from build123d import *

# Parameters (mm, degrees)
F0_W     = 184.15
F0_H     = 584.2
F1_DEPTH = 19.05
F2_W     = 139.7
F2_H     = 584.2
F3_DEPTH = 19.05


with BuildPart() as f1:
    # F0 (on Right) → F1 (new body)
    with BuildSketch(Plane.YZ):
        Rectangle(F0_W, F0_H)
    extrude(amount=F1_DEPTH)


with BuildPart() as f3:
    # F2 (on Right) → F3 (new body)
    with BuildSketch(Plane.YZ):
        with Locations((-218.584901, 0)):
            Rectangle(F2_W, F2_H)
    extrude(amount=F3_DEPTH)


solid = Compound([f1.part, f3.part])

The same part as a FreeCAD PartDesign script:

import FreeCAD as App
import Part
import Sketcher

V = App.Vector
Q = App.Units.Quantity

doc = App.newDocument("Part")
body = doc.addObject("PartDesign::Body", "Body")

# Sketch on YZ plane
sketch1 = body.newObject("Sketcher::SketchObject", "Sketch")
sketch1.AttachmentSupport = (doc.getObject("YZ_Plane"), [""])
sketch1.MapMode = "FlatFace"
sketch1.addGeometry([
    Part.LineSegment(V(-92, 292, 0), V(-92, -292, 0)),
    Part.LineSegment(V(-92, -292, 0), V(92, -292, 0)),
    Part.LineSegment(V(92, -292, 0), V(92, 292, 0)),
    Part.LineSegment(V(92, 292, 0), V(-92, 292, 0)),
], False)
sketch1.addConstraint([
    Sketcher.Constraint("Coincident", 0, 2, 1, 1),
    Sketcher.Constraint("Coincident", 1, 2, 2, 1),
    Sketcher.Constraint("Coincident", 2, 2, 3, 1),
    Sketcher.Constraint("Coincident", 3, 2, 0, 1),
    Sketcher.Constraint("Vertical", 0),
    Sketcher.Constraint("Horizontal", 1),
    Sketcher.Constraint("Vertical", 2),
    Sketcher.Constraint("Horizontal", 3),
    Sketcher.Constraint("Symmetric", 0, 2, 2, 2, -1, 1),
    Sketcher.Constraint("DistanceY", 0, 2, 0, 1, Q("23 in")),
    Sketcher.Constraint("DistanceX", 1, 1, 1, 2, Q("7.25 in")),
])
pad1 = body.newObject("PartDesign::Pad", "Pad")
pad1.Profile = sketch1
pad1.Length = Q("0.75 in")
body2 = doc.addObject("PartDesign::Body", "Body001")

# Sketch on YZ plane
sketch2 = body2.newObject("Sketcher::SketchObject", "Sketch001")
sketch2.AttachmentSupport = (doc.getObject("YZ_Plane001"), [""])
sketch2.MapMode = "FlatFace"
sketch2.addGeometry([
    Part.LineSegment(V(-288, 292, 0), V(-288, -292, 0)),
    Part.LineSegment(V(-288, -292, 0), V(-149, -292, 0)),
    Part.LineSegment(V(-149, -292, 0), V(-149, 292, 0)),
    Part.LineSegment(V(-149, 292, 0), V(-288, 292, 0)),
], False)
sketch2.addConstraint([
    Sketcher.Constraint("Coincident", 0, 2, 1, 1),
    Sketcher.Constraint("Coincident", 1, 2, 2, 1),
    Sketcher.Constraint("Coincident", 2, 2, 3, 1),
    Sketcher.Constraint("Coincident", 3, 2, 0, 1),
    Sketcher.Constraint("Vertical", 0),
    Sketcher.Constraint("Horizontal", 1),
    Sketcher.Constraint("Vertical", 2),
    Sketcher.Constraint("Horizontal", 3),
    Sketcher.Constraint("DistanceY", 0, 2, 0, 1, Q("23 in")),
    Sketcher.Constraint("DistanceX", 1, 1, 1, 2, Q("5.5 in")),
    Sketcher.Constraint("DistanceY", 0, 2, -1, 1, Q("11.5 in")),
    Sketcher.Constraint("DistanceX", 0, 2, -1, 1, Q("288.434901 mm")),
])
pad2 = body2.newObject("PartDesign::Pad", "Pad001")
pad2.Profile = sketch2
pad2.Length = Q("0.75 in")

doc.recompute()
